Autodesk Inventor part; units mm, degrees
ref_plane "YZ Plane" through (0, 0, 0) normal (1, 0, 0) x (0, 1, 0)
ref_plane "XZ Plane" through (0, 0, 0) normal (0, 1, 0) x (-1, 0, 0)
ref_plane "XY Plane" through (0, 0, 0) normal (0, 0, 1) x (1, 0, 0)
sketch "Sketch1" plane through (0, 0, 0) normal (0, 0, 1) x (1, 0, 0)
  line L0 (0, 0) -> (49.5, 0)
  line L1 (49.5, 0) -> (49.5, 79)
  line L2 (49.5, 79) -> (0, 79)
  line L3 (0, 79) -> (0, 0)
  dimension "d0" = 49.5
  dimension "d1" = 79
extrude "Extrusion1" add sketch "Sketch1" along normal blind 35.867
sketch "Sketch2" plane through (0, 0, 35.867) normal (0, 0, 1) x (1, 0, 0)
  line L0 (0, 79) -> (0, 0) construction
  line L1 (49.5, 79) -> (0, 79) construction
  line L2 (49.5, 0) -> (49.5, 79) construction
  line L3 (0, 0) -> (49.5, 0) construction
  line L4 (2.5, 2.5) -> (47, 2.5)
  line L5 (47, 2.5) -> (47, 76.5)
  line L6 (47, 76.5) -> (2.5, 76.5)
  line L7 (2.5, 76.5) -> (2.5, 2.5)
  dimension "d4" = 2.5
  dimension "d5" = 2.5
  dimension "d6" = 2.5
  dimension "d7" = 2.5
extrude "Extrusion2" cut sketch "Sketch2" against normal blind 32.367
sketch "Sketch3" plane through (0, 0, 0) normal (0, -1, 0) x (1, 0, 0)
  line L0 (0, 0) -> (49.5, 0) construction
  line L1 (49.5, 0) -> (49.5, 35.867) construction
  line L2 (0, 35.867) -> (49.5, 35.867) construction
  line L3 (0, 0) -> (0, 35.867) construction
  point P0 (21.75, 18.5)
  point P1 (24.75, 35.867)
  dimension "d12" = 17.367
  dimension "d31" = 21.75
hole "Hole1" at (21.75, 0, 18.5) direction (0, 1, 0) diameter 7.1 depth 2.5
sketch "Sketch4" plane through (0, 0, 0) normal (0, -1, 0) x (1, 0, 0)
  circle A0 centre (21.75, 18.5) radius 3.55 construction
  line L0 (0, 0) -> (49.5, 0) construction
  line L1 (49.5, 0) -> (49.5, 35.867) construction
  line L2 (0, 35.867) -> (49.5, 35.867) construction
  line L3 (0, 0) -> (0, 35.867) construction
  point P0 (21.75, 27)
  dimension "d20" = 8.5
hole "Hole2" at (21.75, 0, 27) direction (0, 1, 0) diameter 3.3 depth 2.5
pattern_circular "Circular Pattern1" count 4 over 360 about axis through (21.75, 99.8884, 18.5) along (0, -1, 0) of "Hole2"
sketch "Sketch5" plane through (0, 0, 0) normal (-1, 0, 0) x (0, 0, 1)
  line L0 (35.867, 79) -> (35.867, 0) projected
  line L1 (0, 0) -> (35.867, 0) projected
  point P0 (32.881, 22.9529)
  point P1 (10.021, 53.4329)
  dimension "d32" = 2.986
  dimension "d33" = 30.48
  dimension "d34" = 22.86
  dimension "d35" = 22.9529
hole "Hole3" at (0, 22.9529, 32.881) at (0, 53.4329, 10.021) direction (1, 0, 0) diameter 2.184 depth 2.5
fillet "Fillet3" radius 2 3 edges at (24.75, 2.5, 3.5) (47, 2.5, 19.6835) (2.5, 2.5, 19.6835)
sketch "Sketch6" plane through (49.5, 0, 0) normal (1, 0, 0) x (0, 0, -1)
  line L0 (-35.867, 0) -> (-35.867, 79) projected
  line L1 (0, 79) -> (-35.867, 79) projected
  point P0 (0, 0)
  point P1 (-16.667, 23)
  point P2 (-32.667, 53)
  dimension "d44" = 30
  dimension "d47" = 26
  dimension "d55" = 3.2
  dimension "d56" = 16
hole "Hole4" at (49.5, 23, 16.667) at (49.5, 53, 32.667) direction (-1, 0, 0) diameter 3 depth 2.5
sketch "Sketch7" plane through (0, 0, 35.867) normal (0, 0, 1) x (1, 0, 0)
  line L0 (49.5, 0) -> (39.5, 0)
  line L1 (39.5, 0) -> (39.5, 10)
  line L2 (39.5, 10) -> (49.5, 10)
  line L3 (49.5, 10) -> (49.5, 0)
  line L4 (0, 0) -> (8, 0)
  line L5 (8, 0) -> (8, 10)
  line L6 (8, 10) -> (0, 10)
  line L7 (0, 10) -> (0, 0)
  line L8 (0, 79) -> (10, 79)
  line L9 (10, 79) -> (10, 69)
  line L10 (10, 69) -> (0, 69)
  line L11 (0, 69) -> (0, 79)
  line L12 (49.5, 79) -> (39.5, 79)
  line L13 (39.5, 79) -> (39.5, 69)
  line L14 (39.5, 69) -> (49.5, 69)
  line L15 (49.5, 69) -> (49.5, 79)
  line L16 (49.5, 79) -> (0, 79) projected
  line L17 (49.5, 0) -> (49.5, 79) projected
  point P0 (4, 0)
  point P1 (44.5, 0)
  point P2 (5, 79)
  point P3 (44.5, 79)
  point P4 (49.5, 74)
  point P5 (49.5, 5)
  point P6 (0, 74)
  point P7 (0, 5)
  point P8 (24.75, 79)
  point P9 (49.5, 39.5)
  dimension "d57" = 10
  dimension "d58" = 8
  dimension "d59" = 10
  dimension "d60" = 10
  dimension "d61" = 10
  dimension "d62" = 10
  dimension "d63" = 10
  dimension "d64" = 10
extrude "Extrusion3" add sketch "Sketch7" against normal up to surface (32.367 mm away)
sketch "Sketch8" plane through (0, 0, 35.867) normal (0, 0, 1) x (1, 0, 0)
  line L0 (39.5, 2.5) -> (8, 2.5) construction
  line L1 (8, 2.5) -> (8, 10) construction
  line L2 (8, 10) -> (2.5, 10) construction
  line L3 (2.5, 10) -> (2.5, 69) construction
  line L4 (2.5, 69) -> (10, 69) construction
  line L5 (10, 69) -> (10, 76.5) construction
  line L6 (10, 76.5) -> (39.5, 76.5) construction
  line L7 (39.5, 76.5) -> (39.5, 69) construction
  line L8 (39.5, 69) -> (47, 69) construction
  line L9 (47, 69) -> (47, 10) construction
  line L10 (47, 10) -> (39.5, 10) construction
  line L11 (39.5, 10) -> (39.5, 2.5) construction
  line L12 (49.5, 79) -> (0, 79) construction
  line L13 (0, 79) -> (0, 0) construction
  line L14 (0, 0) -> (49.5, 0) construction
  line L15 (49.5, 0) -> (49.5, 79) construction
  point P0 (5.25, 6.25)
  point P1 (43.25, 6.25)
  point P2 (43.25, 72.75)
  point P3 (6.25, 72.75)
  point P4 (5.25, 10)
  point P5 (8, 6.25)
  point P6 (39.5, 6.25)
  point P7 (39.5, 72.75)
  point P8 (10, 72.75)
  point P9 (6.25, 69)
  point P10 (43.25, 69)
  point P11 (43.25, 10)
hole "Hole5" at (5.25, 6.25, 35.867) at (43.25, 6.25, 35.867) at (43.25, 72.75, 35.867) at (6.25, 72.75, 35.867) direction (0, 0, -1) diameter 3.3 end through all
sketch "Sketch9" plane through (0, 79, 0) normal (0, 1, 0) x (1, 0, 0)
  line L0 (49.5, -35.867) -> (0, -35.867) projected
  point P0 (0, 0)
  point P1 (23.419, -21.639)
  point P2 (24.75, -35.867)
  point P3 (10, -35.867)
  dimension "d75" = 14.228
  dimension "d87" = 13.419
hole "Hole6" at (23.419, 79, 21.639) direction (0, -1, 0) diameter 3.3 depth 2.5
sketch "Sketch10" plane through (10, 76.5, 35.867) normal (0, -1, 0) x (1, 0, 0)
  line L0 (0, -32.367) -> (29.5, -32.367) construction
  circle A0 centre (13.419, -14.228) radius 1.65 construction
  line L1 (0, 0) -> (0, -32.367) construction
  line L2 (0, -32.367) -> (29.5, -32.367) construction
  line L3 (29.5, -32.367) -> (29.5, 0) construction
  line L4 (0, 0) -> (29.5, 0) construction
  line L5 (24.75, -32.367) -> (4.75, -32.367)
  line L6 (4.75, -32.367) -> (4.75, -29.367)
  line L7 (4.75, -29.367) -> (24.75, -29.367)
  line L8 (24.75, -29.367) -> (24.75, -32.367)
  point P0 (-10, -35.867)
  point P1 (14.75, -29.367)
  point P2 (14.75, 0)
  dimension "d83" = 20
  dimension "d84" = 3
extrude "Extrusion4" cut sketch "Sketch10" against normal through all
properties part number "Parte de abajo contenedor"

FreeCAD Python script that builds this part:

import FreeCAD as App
import Part
import Sketcher
from FreeCAD import Vector
Q = App.Units.Quantity


def edges_at(feature, points):
    """Names of the edges that pass closest to the given points."""
    edges = feature.Shape.Edges
    near = lambda p: min(range(len(edges)), key=lambda i: edges[i].distToShape(Part.Vertex(*p))[0])
    return sorted({f"Edge{near(p) + 1}" for p in points})

doc = App.newDocument("Part")
params = doc.addObject("Spreadsheet::Sheet", "Params")
for row, (alias, value) in enumerate([
    ("sketch1_height", "79 mm"),
    ("sketch1_width", "49.5 mm"),
    ("pad1_length", "35.867 mm"),
    ("sketch2_height", "74 mm"),
    ("sketch2_width", "44.5 mm"),
    ("pocket1_length", "32.367 mm"),
    ("sketch3_diameter", "7.1 mm"),
    ("hole_diameter", "7.1 mm"),
    ("hole_depth", "2.5 mm"),
    ("sketch4_diameter", "3.3 mm"),
    ("hole2_diameter", "3.3 mm"),
    ("hole2_depth", "2.5 mm"),
    ("hole3_diameter", "2.184 mm"),
    ("hole3_depth", "2.5 mm"),
    ("fillet_radius", "2 mm"),
    ("sketch6_diameter", "3 mm"),
    ("hole4_diameter", "3 mm"),
    ("hole4_depth", "2.5 mm"),
    ("sketch7_width", "10 mm"),
    ("sketch7_width2", "8 mm"),
    ("pad2_length", "32.367 mm"),
    ("sketch8_diameter", "3.3 mm"),
    ("hole5_diameter", "3.3 mm"),
    ("sketch9_diameter", "3.3 mm"),
    ("hole6_diameter", "3.3 mm"),
    ("hole6_depth", "2.5 mm"),
    ("sketch10_width", "20 mm"),
    ("sketch10_height", "3 mm"),
], start=1):
    params.set(f"A{row}", alias)
    params.set(f"B{row}", "=" + value)
    params.setAlias(f"B{row}", alias)

body = doc.addObject("PartDesign::Body", "Body")

sketch1 = body.newObject("Sketcher::SketchObject", "Sketch")
sketch1.AttachmentSupport = (doc.getObject("XY_Plane"), [""])
sketch1.MapMode = "FlatFace"
sketch1.addGeometry([
    Part.LineSegment(Vector(0, 79, 0), Vector(0, 0, 0)),
    Part.LineSegment(Vector(0, 0, 0), Vector(49.5, 0, 0)),
    Part.LineSegment(Vector(49.5, 0, 0), Vector(49.5, 79, 0)),
    Part.LineSegment(Vector(49.5, 79, 0), Vector(0, 79, 0)),
], False)
sketch1.addConstraint([
    Sketcher.Constraint("Coincident", 0, 2, 1, 1),
    Sketcher.Constraint("Coincident", 1, 2, 2, 1),
    Sketcher.Constraint("Coincident", 2, 2, 3, 1),
    Sketcher.Constraint("Coincident", 3, 2, 0, 1),
    Sketcher.Constraint("Vertical", 0),
    Sketcher.Constraint("Horizontal", 1),
    Sketcher.Constraint("Vertical", 2),
    Sketcher.Constraint("Horizontal", 3),
    Sketcher.Constraint("Coincident", 0, 2, -1, 1),
    Sketcher.Constraint("DistanceY", 0, 2, 0, 1, Q("79 mm")),
    Sketcher.Constraint("DistanceX", 1, 1, 1, 2, Q("49.5 mm")),
])
sketch1.setExpression("Constraints[9]", "Params.sketch1_height")
sketch1.setExpression("Constraints[10]", "Params.sketch1_width")
pad1 = body.newObject("PartDesign::Pad", "Pad")
pad1.Profile = sketch1
pad1.setExpression("Length", "Params.pad1_length")

sketch2 = body.newObject("Sketcher::SketchObject", "Sketch001")
sketch2.AttachmentSupport = (doc.getObject("XY_Plane"), [""])
sketch2.MapMode = "FlatFace"
sketch2.AttachmentOffset = App.Placement(Vector(0, 0, 35.867), App.Rotation())
sketch2.addGeometry([
    Part.LineSegment(Vector(2.5, 76.5, 0), Vector(2.5, 2.5, 0)),
    Part.LineSegment(Vector(2.5, 2.5, 0), Vector(47, 2.5, 0)),
    Part.LineSegment(Vector(47, 2.5, 0), Vector(47, 76.5, 0)),
    Part.LineSegment(Vector(47, 76.5, 0), Vector(2.5, 76.5, 0)),
], False)
sketch2.addConstraint([
    Sketcher.Constraint("Coincident", 0, 2, 1, 1),
    Sketcher.Constraint("Coincident", 1, 2, 2, 1),
    Sketcher.Constraint("Coincident", 2, 2, 3, 1),
    Sketcher.Constraint("Coincident", 3, 2, 0, 1),
    Sketcher.Constraint("Vertical", 0),
    Sketcher.Constraint("Horizontal", 1),
    Sketcher.Constraint("Vertical", 2),
    Sketcher.Constraint("Horizontal", 3),
    Sketcher.Constraint("DistanceX", -1, 1, 0, 2, Q("2.5 mm")),
    Sketcher.Constraint("DistanceY", -1, 1, 0, 2, Q("2.5 mm")),
    Sketcher.Constraint("DistanceY", 0, 2, 0, 1, Q("74 mm")),
    Sketcher.Constraint("DistanceX", 1, 1, 1, 2, Q("44.5 mm")),
])
sketch2.setExpression("Constraints[10]", "Params.sketch2_height")
sketch2.setExpression("Constraints[11]", "Params.sketch2_width")
pocket1 = body.newObject("PartDesign::Pocket", "Pocket")
pocket1.Profile = sketch2
pocket1.setExpression("Length", "Params.pocket1_length")

sketch3 = body.newObject("Sketcher::SketchObject", "Sketch002")
sketch3.AttachmentSupport = (doc.getObject("XZ_Plane"), [""])
sketch3.MapMode = "FlatFace"
sketch3.addGeometry(Part.Circle(Vector(21.75, 18.5, 0), Vector(0, 0, 1), 3.55), False)
sketch3.addConstraint([
    Sketcher.Constraint("Diameter", 0, Q("7.1 mm")),
    Sketcher.Constraint("DistanceY", -1, 1, 0, 3, Q("18.5 mm")),
    Sketcher.Constraint("DistanceX", -1, 1, 0, 3, Q("21.75 mm")),
])
sketch3.setExpression("Constraints[0]", "Params.sketch3_diameter")
doc.recompute()
hole = body.newObject("PartDesign::Hole", "Hole")
hole.Profile = sketch3
hole.ThreadType = "None"
hole.setExpression("Diameter", "Params.hole_diameter")
hole.DepthType = "Dimension"
hole.setExpression("Depth", "Params.hole_depth")
hole.DrillPoint = "Flat"

sketch4 = body.newObject("Sketcher::SketchObject", "Sketch003")
sketch4.AttachmentSupport = (doc.getObject("XZ_Plane"), [""])
sketch4.MapMode = "FlatFace"
sketch4.addGeometry(Part.Circle(Vector(21.75, 27, 0), Vector(0, 0, 1), 1.65), False)
sketch4.addConstraint([
    Sketcher.Constraint("Diameter", 0, Q("3.3 mm")),
    Sketcher.Constraint("DistanceY", -1, 1, 0, 3, Q("27 mm")),
    Sketcher.Constraint("DistanceX", -1, 1, 0, 3, Q("21.75 mm")),
])
sketch4.setExpression("Constraints[0]", "Params.sketch4_diameter")
doc.recompute()
hole2 = body.newObject("PartDesign::Hole", "Hole001")
hole2.Profile = sketch4
hole2.ThreadType = "None"
hole2.setExpression("Diameter", "Params.hole2_diameter")
hole2.DepthType = "Dimension"
hole2.setExpression("Depth", "Params.hole2_depth")
hole2.DrillPoint = "Flat"
doc.recompute()

datumline = body.newObject("PartDesign::Line", "DatumLine")
datumline.Placement = App.Placement(Vector(21.75, 0, 18.5), App.Rotation(Vector(0, 0, 1), Vector(0, 1, 0)))
polarpattern = body.newObject("PartDesign::PolarPattern", "PolarPattern")
polarpattern.Originals = [hole2]
polarpattern.Axis = (datumline, [""])
polarpattern.Angle = 360
polarpattern.Occurrences = 4
body.Tip = polarpattern

sketch5 = body.newObject("Sketcher::SketchObject", "Sketch004")
sketch5.AttachmentSupport = (doc.getObject("YZ_Plane"), [""])
sketch5.MapMode = "FlatFace"
sketch5.addGeometry([
    Part.Circle(Vector(22.9529, 32.881, 0), Vector(0, 0, 1), 1.092),
    Part.Circle(Vector(53.4329, 10.021, 0), Vector(0, 0, 1), 1.092),
], False)
sketch5.addConstraint([
    Sketcher.Constraint("Equal", 0, 1),
    Sketcher.Constraint("Diameter", 0, Q("2.184 mm")),
    Sketcher.Constraint("DistanceX", 0, 3, 1, 3, Q("30.48 mm")),
    Sketcher.Constraint("DistanceY", 1, 3, 0, 3, Q("22.86 mm")),
    Sketcher.Constraint("DistanceX", -1, 1, 0, 3, Q("22.953 mm")),
    Sketcher.Constraint("DistanceY", -1, 1, 0, 3, Q("32.881 mm")),
])
doc.recompute()
hole3 = body.newObject("PartDesign::Hole", "Hole002")
hole3.Profile = sketch5
hole3.ThreadType = "None"
hole3.setExpression("Diameter", "Params.hole3_diameter")
hole3.DepthType = "Dimension"
hole3.setExpression("Depth", "Params.hole3_depth")
hole3.DrillPoint = "Flat"
hole3.Reversed = True
doc.recompute()

fillet = body.newObject("PartDesign::Fillet", "Fillet")
fillet.Base = (hole3, edges_at(hole3, [(24.75, 2.5, 3.5), (47, 2.5, 19.683), (2.5, 2.5, 19.683)]))
fillet.setExpression("Radius", "Params.fillet_radius")

sketch6 = body.newObject("Sketcher::SketchObject", "Sketch005")
sketch6.AttachmentSupport = (doc.getObject("YZ_Plane"), [""])
sketch6.MapMode = "FlatFace"
sketch6.AttachmentOffset = App.Placement(Vector(0, 0, 49.5), App.Rotation())
sketch6.addGeometry([
    Part.Circle(Vector(23, 16.667, 0), Vector(0, 0, 1), 1.5),
    Part.Circle(Vector(53, 32.667, 0), Vector(0, 0, 1), 1.5),
], False)
sketch6.addConstraint([
    Sketcher.Constraint("Equal", 0, 1),
    Sketcher.Constraint("Diameter", 0, Q("3 mm")),
    Sketcher.Constraint("DistanceX", -1, 1, 0, 3, Q("23 mm")),
    Sketcher.Constraint("DistanceX", -1, 1, 1, 3, Q("53 mm")),
    Sketcher.Constraint("DistanceY", 0, 3, 1, 3, Q("16 mm")),
    Sketcher.Constraint("DistanceY", -1, 1, 0, 3, Q("16.667 mm")),
])
sketch6.setExpression("Constraints[1]", "Params.sketch6_diameter")
doc.recompute()
hole4 = body.newObject("PartDesign::Hole", "Hole003")
hole4.Profile = sketch6
hole4.ThreadType = "None"
hole4.setExpression("Diameter", "Params.hole4_diameter")
hole4.DepthType = "Dimension"
hole4.setExpression("Depth", "Params.hole4_depth")
hole4.DrillPoint = "Flat"

sketch7 = body.newObject("Sketcher::SketchObject", "Sketch006")
sketch7.AttachmentSupport = (doc.getObject("XY_Plane"), [""])
sketch7.MapMode = "FlatFace"
sketch7.AttachmentOffset = App.Placement(Vector(0, 0, 35.867), App.Rotation())
sketch7.addGeometry([
    Part.LineSegment(Vector(10, 69, 0), Vector(10, 79, 0)),
    Part.LineSegment(Vector(10, 79, 0), Vector(0, 79, 0)),
    Part.LineSegment(Vector(0, 79, 0), Vector(0, 69, 0)),
    Part.LineSegment(Vector(0, 69, 0), Vector(10, 69, 0)),
    Part.LineSegment(Vector(39.5, 69, 0), Vector(49.5, 69, 0)),
    Part.LineSegment(Vector(49.5, 69, 0), Vector(49.5, 79, 0)),
    Part.LineSegment(Vector(49.5, 79, 0), Vector(39.5, 79, 0)),
    Part.LineSegment(Vector(39.5, 79, 0), Vector(39.5, 69, 0)),
    Part.LineSegment(Vector(39.5, 0, 0), Vector(49.5, 0, 0)),
    Part.LineSegment(Vector(49.5, 0, 0), Vector(49.5, 10, 0)),
    Part.LineSegment(Vector(49.5, 10, 0), Vector(39.5, 10, 0)),
    Part.LineSegment(Vector(39.5, 10, 0), Vector(39.5, 0, 0)),
    Part.LineSegment(Vector(0, 10, 0), Vector(0, 0, 0)),
    Part.LineSegment(Vector(0, 0, 0), Vector(8, 0, 0)),
    Part.LineSegment(Vector(8, 0, 0), Vector(8, 10, 0)),
    Part.LineSegment(Vector(8, 10, 0), Vector(0, 10, 0)),
], False)
sketch7.addConstraint([
    Sketcher.Constraint("Coincident", 0, 2, 1, 1),
    Sketcher.Constraint("Coincident", 1, 2, 2, 1),
    Sketcher.Constraint("Coincident", 2, 2, 3, 1),
    Sketcher.Constraint("Coincident", 3, 2, 0, 1),
    Sketcher.Constraint("Coincident", 4, 2, 5, 1),
    Sketcher.Constraint("Coincident", 5, 2, 6, 1),
    Sketcher.Constraint("Coincident", 6, 2, 7, 1),
    Sketcher.Constraint("Coincident", 7, 2, 4, 1),
    Sketcher.Constraint("Coincident", 8, 2, 9, 1),
    Sketcher.Constraint("Coincident", 9, 2, 10, 1),
    Sketcher.Constraint("Coincident", 10, 2, 11, 1),
    Sketcher.Constraint("Coincident", 11, 2, 8, 1),
    Sketcher.Constraint("Coincident", 12, 2, 13, 1),
    Sketcher.Constraint("Coincident", 13, 2, 14, 1),
    Sketcher.Constraint("Coincident", 14, 2, 15, 1),
    Sketcher.Constraint("Coincident", 15, 2, 12, 1),
    Sketcher.Constraint("Vertical", 0),
    Sketcher.Constraint("Horizontal", 1),
    Sketcher.Constraint("Vertical", 2),
    Sketcher.Constraint("Horizontal", 3),
    Sketcher.Constraint("Horizontal", 4),
    Sketcher.Constraint("Vertical", 5),
    Sketcher.Constraint("Horizontal", 6),
    Sketcher.Constraint("Vertical", 7),
    Sketcher.Constraint("Horizontal", 8),
    Sketcher.Constraint("Vertical", 9),
    Sketcher.Constraint("Horizontal", 10),
    Sketcher.Constraint("Vertical", 11),
    Sketcher.Constraint("Vertical", 12),
    Sketcher.Constraint("Horizontal", 13),
    Sketcher.Constraint("Vertical", 14),
    Sketcher.Constraint("Horizontal", 15),
    Sketcher.Constraint("Coincident", 12, 2, -1, 1),
    Sketcher.Constraint("PointOnObject", 1, 2, -2),
    Sketcher.Constraint("PointOnObject", 8, 2, -1),
    Sketcher.Constraint("Horizontal", 3, 2, 4, 2),
    Sketcher.Constraint("Horizontal", 1, 2, 5, 2),
    Sketcher.Constraint("Horizontal", 10, 2, 14, 2),
    Sketcher.Constraint("Vertical", 5, 2, 8, 2),
    Sketcher.Constraint("Vertical", 7, 2, 10, 2),
    Sketcher.Constraint("Equal", 3, 4),
    Sketcher.Constraint("Equal", 10, 0),
    Sketcher.Constraint("Equal", 7, 9),
    Sketcher.Constraint("DistanceX", 1, 2, 1, 1, Q("10 mm")),
    Sketcher.Constraint("DistanceX", 13, 1, 13, 2, Q("8 mm")),
    Sketcher.Constraint("DistanceY", -1, 1, 0, 2, Q("79 mm")),
    Sketcher.Constraint("DistanceX", -1, 1, 4, 2, Q("49.5 mm")),
])
sketch7.setExpression("Constraints[43]", "Params.sketch7_width")
sketch7.setExpression("Constraints[44]", "Params.sketch7_width2")
pad2 = body.newObject("PartDesign::Pad", "Pad001")
pad2.Profile = sketch7
pad2.setExpression("Length", "Params.pad2_length")
pad2.Reversed = True

sketch8 = body.newObject("Sketcher::SketchObject", "Sketch007")
sketch8.AttachmentSupport = (doc.getObject("XY_Plane"), [""])
sketch8.MapMode = "FlatFace"
sketch8.AttachmentOffset = App.Placement(Vector(0, 0, 35.867), App.Rotation())
sketch8.addGeometry([
    Part.Circle(Vector(5.25, 6.25, 0), Vector(0, 0, 1), 1.65),
    Part.Circle(Vector(43.25, 6.25, 0), Vector(0, 0, 1), 1.65),
    Part.Circle(Vector(43.25, 72.75, 0), Vector(0, 0, 1), 1.65),
    Part.Circle(Vector(6.25, 72.75, 0), Vector(0, 0, 1), 1.65),
], False)
sketch8.addConstraint([
    Sketcher.Constraint("Equal", 0, 1),
    Sketcher.Constraint("Equal", 1, 2),
    Sketcher.Constraint("Equal", 2, 3),
    Sketcher.Constraint("Horizontal", 0, 3, 1, 3),
    Sketcher.Constraint("Horizontal", 2, 3, 3, 3),
    Sketcher.Constraint("Vertical", 1, 3, 2, 3),
    Sketcher.Constraint("Diameter", 0, Q("3.3 mm")),
    Sketcher.Constraint("DistanceX", 0, 3, 1, 3, Q("38 mm")),
    Sketcher.Constraint("DistanceX", 3, 3, 2, 3, Q("37 mm")),
    Sketcher.Constraint("DistanceY", 1, 3, 2, 3, Q("66.5 mm")),
    Sketcher.Constraint("DistanceX", -1, 1, 0, 3, Q("5.25 mm")),
    Sketcher.Constraint("DistanceY", -1, 1, 0, 3, Q("6.25 mm")),
])
sketch8.setExpression("Constraints[6]", "Params.sketch8_diameter")
doc.recompute()
hole5 = body.newObject("PartDesign::Hole", "Hole004")
hole5.Profile = sketch8
hole5.ThreadType = "None"
hole5.setExpression("Diameter", "Params.hole5_diameter")
hole5.DepthType = "ThroughAll"

sketch9 = body.newObject("Sketcher::SketchObject", "Sketch008")
sketch9.AttachmentSupport = (doc.getObject("XZ_Plane"), [""])
sketch9.MapMode = "FlatFace"
sketch9.AttachmentOffset = App.Placement(Vector(0, 0, -79), App.Rotation())
sketch9.addGeometry(Part.Circle(Vector(23.419, 21.639, 0), Vector(0, 0, 1), 1.65), False)
sketch9.addConstraint([
    Sketcher.Constraint("Diameter", 0, Q("3.3 mm")),
    Sketcher.Constraint("DistanceX", -1, 1, 0, 3, Q("23.419 mm")),
    Sketcher.Constraint("DistanceY", -1, 1, 0, 3, Q("21.639 mm")),
])
sketch9.setExpression("Constraints[0]", "Params.sketch9_diameter")
doc.recompute()
hole6 = body.newObject("PartDesign::Hole", "Hole005")
hole6.Profile = sketch9
hole6.ThreadType = "None"
hole6.setExpression("Diameter", "Params.hole6_diameter")
hole6.DepthType = "Dimension"
hole6.setExpression("Depth", "Params.hole6_depth")
hole6.DrillPoint = "Flat"
hole6.Reversed = True

sketch10 = body.newObject("Sketcher::SketchObject", "Sketch009")
sketch10.AttachmentSupport = (doc.getObject("XZ_Plane"), [""])
sketch10.MapMode = "FlatFace"
sketch10.AttachmentOffset = App.Placement(Vector(0, 0, -76.5), App.Rotation())
sketch10.addGeometry([
    Part.LineSegment(Vector(14.75, 3.5, 0), Vector(34.75, 3.5, 0)),
    Part.LineSegment(Vector(34.75, 3.5, 0), Vector(34.75, 6.5, 0)),
    Part.LineSegment(Vector(34.75, 6.5, 0), Vector(14.75, 6.5, 0)),
    Part.LineSegment(Vector(14.75, 6.5, 0), Vector(14.75, 3.5, 0)),
], False)
sketch10.addConstraint([
    Sketcher.Constraint("Coincident", 0, 2, 1, 1),
    Sketcher.Constraint("Coincident", 1, 2, 2, 1),
    Sketcher.Constraint("Coincident", 2, 2, 3, 1),
    Sketcher.Constraint("Coincident", 3, 2, 0, 1),
    Sketcher.Constraint("Horizontal", 0),
    Sketcher.Constraint("Vertical", 1),
    Sketcher.Constraint("Horizontal", 2),
    Sketcher.Constraint("Vertical", 3),
    Sketcher.Constraint("DistanceX", 0, 1, 0, 2, Q("20 mm")),
    Sketcher.Constraint("DistanceY", 1, 1, 1, 2, Q("3 mm")),
    Sketcher.Constraint("DistanceY", -1, 1, 0, 2, Q("3.5 mm")),
    Sketcher.Constraint("DistanceX", -1, 1, 0, 2, Q("34.75 mm")),
])
sketch10.setExpression("Constraints[8]", "Params.sketch10_width")
sketch10.setExpression("Constraints[9]", "Params.sketch10_height")
pocket2 = body.newObject("PartDesign::Pocket", "Pocket001")
pocket2.Profile = sketch10
pocket2.Type = "ThroughAll"

doc.recompute()
